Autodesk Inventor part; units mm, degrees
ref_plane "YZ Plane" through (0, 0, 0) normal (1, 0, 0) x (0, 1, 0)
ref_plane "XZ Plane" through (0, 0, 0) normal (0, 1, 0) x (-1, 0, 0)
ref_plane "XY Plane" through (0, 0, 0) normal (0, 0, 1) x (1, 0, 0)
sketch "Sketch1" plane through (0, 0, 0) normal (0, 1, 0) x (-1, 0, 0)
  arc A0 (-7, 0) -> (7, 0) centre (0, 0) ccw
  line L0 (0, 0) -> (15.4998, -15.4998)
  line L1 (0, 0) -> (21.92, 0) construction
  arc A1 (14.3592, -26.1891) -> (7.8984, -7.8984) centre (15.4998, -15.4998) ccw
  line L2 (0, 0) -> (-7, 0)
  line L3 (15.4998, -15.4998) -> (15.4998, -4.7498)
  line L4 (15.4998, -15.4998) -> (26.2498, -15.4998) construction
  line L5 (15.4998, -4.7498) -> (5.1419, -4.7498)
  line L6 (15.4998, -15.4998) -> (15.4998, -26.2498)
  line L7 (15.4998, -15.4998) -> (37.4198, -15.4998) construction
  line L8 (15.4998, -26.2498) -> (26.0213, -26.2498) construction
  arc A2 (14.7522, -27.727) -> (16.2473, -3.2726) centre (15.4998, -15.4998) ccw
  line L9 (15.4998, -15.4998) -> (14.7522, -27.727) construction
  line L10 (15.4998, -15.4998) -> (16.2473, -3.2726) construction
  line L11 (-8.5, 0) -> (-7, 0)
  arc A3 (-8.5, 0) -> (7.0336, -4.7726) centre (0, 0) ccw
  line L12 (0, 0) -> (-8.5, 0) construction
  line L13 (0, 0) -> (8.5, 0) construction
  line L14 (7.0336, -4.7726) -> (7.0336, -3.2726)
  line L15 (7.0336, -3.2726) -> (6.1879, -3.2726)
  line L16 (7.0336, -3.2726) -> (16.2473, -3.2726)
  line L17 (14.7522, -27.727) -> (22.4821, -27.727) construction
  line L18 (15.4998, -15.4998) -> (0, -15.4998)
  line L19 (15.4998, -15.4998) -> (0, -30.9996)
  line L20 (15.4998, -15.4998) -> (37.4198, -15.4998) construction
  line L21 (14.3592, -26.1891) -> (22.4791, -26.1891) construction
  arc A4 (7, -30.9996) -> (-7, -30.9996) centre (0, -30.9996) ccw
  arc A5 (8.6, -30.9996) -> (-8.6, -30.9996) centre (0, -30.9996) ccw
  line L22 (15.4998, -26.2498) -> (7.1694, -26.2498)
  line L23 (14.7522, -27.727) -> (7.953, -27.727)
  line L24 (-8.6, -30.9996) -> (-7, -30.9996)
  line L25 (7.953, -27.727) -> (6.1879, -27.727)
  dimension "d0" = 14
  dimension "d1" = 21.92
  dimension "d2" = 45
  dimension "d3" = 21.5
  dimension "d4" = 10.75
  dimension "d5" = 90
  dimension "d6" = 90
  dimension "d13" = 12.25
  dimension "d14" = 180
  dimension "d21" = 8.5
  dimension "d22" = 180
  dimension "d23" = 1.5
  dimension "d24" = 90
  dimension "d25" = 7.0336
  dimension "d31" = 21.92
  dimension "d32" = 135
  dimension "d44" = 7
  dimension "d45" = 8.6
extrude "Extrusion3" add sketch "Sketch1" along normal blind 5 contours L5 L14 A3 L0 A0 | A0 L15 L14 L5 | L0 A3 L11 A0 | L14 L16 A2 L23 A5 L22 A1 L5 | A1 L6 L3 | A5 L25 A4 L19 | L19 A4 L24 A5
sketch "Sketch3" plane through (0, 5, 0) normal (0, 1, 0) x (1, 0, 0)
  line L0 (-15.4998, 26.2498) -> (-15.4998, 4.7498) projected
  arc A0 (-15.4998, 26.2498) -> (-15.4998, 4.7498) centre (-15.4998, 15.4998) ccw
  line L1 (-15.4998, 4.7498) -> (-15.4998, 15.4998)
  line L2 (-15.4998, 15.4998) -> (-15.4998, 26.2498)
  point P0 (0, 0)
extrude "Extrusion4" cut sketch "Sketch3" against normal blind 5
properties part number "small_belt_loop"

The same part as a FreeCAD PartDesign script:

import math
import FreeCAD as App
import Part
import Sketcher
Q = App.Units.Quantity

doc = App.newDocument("Part")
body = doc.addObject("PartDesign::Body", "Body")

# Sketch on XZ plane
sketch1 = body.newObject("Sketcher::SketchObject", "Sketch")
sketch1.AttachmentSupport = (doc.getObject("XZ_Plane"), [""])
sketch1.MapMode = "FlatFace"
sketch1.addGeometry([
    Part.LineSegment(App.Vector(-7.0336, -4.7726, 0), App.Vector(-7.0336, -4.7498, 0)),  # 0
    Part.LineSegment(App.Vector(-7.0336, -4.7498, 0), App.Vector(-15.4998, -4.7498, 0)),  # 1
    Part.LineSegment(App.Vector(-15.4998, -4.7498, 0), App.Vector(-15.4998, -26.2498, 0)),  # 2
    Part.LineSegment(App.Vector(-15.4998, -26.2498, 0), App.Vector(-7.1694, -26.2498, 0)),  # 3
    Part.ArcOfCircle(Part.Circle(App.Vector(0, -30.9996, 0), App.Vector(0, 0, 1), 8.6), math.radians(0), math.radians(146.475124)),  # 4
    Part.LineSegment(App.Vector(8.6, -30.9996, 0), App.Vector(7, -30.9996, 0)),  # 5
    Part.ArcOfCircle(Part.Circle(App.Vector(0, -30.9996, 0), App.Vector(0, 0, 1), 7), math.radians(0), math.radians(152.126941)),  # 6
    Part.LineSegment(App.Vector(-6.1879, -27.727, 0), App.Vector(-14.7522, -27.727, 0)),  # 7
    Part.ArcOfCircle(Part.Circle(App.Vector(-15.4998, -15.4998, 0), App.Vector(0, 0, 1), 12.250034), math.radians(93.498377), math.radians(273.498844)),  # 8
    Part.LineSegment(App.Vector(-16.2473, -3.2726, 0), App.Vector(-6.1879, -3.2726, 0)),  # 9
    Part.ArcOfCircle(Part.Circle(App.Vector(0, 0, 0), App.Vector(0, 0, 1), 7), math.radians(-152.126941), math.radians(0)),  # 10
    Part.LineSegment(App.Vector(7, 0, 0), App.Vector(8.5, 0, 0)),  # 11
    Part.ArcOfCircle(Part.Circle(App.Vector(0, 0, 0), App.Vector(0, 0, 1), 8.5), math.radians(-145.841421), math.radians(0)),  # 12
], False)
sketch1.addConstraint([
    Sketcher.Constraint("Coincident", 0, 2, 1, 1),
    Sketcher.Constraint("Coincident", 1, 2, 2, 1),
    Sketcher.Constraint("Coincident", 2, 2, 3, 1),
    Sketcher.Constraint("Coincident", 3, 2, 4, 2),
    Sketcher.Constraint("Coincident", 4, 1, 5, 1),
    Sketcher.Constraint("Coincident", 5, 2, 6, 1),
    Sketcher.Constraint("Coincident", 6, 2, 7, 1),
    Sketcher.Constraint("Coincident", 7, 2, 8, 2),
    Sketcher.Constraint("Coincident", 8, 1, 9, 1),
    Sketcher.Constraint("Coincident", 9, 2, 10, 1),
    Sketcher.Constraint("Coincident", 10, 2, 11, 1),
    Sketcher.Constraint("Coincident", 11, 2, 12, 2),
    Sketcher.Constraint("Coincident", 12, 1, 0, 1),
    Sketcher.Constraint("Vertical", 0),
    Sketcher.Constraint("Horizontal", 1),
    Sketcher.Constraint("Vertical", 2),
    Sketcher.Constraint("Horizontal", 3),
    Sketcher.Constraint("Horizontal", 5),
    Sketcher.Constraint("Horizontal", 7),
    Sketcher.Constraint("Horizontal", 9),
    Sketcher.Constraint("Horizontal", 11),
    Sketcher.Constraint("Coincident", 10, 3, -1, 1),
    Sketcher.Constraint("Coincident", 12, 3, -1, 1),
    Sketcher.Constraint("Coincident", 6, 3, 4, 3),
    Sketcher.Constraint("PointOnObject", 4, 3, -2),
    Sketcher.Constraint("PointOnObject", 10, 2, -1),
    Sketcher.Constraint("Radius", 6, Q("7 mm")),
    Sketcher.Constraint("Radius", 10, Q("7 mm")),
    Sketcher.Constraint("Radius", 4, Q("8.6 mm")),
    Sketcher.Constraint("Radius", 12, Q("8.5 mm")),
    Sketcher.Constraint("Radius", 8, Q("12.25 mm")),
    Sketcher.Constraint("DistanceY", 2, 2, 2, 1, Q("21.5 mm")),
    Sketcher.Constraint("DistanceY", 12, 1, 9, 2, Q("1.5 mm")),
    Sketcher.Constraint("DistanceY", 8, 3, 0, 2, Q("10.75 mm")),
    Sketcher.Constraint("DistanceX", 0, 2, -1, 1, Q("7.0336 mm")),
    Sketcher.Constraint("DistanceX", 1, 2, 1, 1, Q("8.4662 mm")),
    Sketcher.Constraint("DistanceX", 3, 1, 3, 2, Q("8.3304 mm")),
    Sketcher.Constraint("DistanceX", 7, 2, 7, 1, Q("8.5643 mm")),
    Sketcher.Constraint("DistanceX", 9, 1, 9, 2, Q("10.0594 mm")),
    Sketcher.Constraint("DistanceY", 0, 1, 0, 2, Q("0.0228 mm")),
    Sketcher.Constraint("DistanceY", 4, 1, -1, 1, Q("30.9996 mm")),
])
pad1 = body.newObject("PartDesign::Pad", "Pad")
pad1.Profile = sketch1
pad1.Length = 5
pad1.Reversed = True

# Sketch on XZ plane
sketch2 = body.newObject("Sketcher::SketchObject", "Sketch001")
sketch2.AttachmentSupport = (doc.getObject("XZ_Plane"), [""])
sketch2.MapMode = "FlatFace"
sketch2.AttachmentOffset = App.Placement(App.Vector(0, 0, -5), App.Rotation())
sketch2.addGeometry([
    Part.LineSegment(App.Vector(-15.4998, -4.7498, 0), App.Vector(-15.4998, -26.2498, 0)),
    Part.ArcOfCircle(Part.Circle(App.Vector(-15.4998, -15.4998, 0), App.Vector(0, 0, 1), 10.75), math.radians(90), math.radians(270)),
], False)
sketch2.addConstraint([
    Sketcher.Constraint("Coincident", 0, 1, 1, 1),
    Sketcher.Constraint("Coincident", 1, 2, 0, 2),
    Sketcher.Constraint("Vertical", 0),
    Sketcher.Constraint("Vertical", 1, 3, 0, 1),
    Sketcher.Constraint("Radius", 1, Q("10.75 mm")),
    Sketcher.Constraint("DistanceX", 1, 3, -1, 1, Q("15.4998 mm")),
    Sketcher.Constraint("DistanceY", 1, 3, -1, 1, Q("15.4998 mm")),
])
pocket1 = body.newObject("PartDesign::Pocket", "Pocket")
pocket1.Profile = sketch2
pocket1.Length = 5
pocket1.Reversed = True

doc.recompute()
